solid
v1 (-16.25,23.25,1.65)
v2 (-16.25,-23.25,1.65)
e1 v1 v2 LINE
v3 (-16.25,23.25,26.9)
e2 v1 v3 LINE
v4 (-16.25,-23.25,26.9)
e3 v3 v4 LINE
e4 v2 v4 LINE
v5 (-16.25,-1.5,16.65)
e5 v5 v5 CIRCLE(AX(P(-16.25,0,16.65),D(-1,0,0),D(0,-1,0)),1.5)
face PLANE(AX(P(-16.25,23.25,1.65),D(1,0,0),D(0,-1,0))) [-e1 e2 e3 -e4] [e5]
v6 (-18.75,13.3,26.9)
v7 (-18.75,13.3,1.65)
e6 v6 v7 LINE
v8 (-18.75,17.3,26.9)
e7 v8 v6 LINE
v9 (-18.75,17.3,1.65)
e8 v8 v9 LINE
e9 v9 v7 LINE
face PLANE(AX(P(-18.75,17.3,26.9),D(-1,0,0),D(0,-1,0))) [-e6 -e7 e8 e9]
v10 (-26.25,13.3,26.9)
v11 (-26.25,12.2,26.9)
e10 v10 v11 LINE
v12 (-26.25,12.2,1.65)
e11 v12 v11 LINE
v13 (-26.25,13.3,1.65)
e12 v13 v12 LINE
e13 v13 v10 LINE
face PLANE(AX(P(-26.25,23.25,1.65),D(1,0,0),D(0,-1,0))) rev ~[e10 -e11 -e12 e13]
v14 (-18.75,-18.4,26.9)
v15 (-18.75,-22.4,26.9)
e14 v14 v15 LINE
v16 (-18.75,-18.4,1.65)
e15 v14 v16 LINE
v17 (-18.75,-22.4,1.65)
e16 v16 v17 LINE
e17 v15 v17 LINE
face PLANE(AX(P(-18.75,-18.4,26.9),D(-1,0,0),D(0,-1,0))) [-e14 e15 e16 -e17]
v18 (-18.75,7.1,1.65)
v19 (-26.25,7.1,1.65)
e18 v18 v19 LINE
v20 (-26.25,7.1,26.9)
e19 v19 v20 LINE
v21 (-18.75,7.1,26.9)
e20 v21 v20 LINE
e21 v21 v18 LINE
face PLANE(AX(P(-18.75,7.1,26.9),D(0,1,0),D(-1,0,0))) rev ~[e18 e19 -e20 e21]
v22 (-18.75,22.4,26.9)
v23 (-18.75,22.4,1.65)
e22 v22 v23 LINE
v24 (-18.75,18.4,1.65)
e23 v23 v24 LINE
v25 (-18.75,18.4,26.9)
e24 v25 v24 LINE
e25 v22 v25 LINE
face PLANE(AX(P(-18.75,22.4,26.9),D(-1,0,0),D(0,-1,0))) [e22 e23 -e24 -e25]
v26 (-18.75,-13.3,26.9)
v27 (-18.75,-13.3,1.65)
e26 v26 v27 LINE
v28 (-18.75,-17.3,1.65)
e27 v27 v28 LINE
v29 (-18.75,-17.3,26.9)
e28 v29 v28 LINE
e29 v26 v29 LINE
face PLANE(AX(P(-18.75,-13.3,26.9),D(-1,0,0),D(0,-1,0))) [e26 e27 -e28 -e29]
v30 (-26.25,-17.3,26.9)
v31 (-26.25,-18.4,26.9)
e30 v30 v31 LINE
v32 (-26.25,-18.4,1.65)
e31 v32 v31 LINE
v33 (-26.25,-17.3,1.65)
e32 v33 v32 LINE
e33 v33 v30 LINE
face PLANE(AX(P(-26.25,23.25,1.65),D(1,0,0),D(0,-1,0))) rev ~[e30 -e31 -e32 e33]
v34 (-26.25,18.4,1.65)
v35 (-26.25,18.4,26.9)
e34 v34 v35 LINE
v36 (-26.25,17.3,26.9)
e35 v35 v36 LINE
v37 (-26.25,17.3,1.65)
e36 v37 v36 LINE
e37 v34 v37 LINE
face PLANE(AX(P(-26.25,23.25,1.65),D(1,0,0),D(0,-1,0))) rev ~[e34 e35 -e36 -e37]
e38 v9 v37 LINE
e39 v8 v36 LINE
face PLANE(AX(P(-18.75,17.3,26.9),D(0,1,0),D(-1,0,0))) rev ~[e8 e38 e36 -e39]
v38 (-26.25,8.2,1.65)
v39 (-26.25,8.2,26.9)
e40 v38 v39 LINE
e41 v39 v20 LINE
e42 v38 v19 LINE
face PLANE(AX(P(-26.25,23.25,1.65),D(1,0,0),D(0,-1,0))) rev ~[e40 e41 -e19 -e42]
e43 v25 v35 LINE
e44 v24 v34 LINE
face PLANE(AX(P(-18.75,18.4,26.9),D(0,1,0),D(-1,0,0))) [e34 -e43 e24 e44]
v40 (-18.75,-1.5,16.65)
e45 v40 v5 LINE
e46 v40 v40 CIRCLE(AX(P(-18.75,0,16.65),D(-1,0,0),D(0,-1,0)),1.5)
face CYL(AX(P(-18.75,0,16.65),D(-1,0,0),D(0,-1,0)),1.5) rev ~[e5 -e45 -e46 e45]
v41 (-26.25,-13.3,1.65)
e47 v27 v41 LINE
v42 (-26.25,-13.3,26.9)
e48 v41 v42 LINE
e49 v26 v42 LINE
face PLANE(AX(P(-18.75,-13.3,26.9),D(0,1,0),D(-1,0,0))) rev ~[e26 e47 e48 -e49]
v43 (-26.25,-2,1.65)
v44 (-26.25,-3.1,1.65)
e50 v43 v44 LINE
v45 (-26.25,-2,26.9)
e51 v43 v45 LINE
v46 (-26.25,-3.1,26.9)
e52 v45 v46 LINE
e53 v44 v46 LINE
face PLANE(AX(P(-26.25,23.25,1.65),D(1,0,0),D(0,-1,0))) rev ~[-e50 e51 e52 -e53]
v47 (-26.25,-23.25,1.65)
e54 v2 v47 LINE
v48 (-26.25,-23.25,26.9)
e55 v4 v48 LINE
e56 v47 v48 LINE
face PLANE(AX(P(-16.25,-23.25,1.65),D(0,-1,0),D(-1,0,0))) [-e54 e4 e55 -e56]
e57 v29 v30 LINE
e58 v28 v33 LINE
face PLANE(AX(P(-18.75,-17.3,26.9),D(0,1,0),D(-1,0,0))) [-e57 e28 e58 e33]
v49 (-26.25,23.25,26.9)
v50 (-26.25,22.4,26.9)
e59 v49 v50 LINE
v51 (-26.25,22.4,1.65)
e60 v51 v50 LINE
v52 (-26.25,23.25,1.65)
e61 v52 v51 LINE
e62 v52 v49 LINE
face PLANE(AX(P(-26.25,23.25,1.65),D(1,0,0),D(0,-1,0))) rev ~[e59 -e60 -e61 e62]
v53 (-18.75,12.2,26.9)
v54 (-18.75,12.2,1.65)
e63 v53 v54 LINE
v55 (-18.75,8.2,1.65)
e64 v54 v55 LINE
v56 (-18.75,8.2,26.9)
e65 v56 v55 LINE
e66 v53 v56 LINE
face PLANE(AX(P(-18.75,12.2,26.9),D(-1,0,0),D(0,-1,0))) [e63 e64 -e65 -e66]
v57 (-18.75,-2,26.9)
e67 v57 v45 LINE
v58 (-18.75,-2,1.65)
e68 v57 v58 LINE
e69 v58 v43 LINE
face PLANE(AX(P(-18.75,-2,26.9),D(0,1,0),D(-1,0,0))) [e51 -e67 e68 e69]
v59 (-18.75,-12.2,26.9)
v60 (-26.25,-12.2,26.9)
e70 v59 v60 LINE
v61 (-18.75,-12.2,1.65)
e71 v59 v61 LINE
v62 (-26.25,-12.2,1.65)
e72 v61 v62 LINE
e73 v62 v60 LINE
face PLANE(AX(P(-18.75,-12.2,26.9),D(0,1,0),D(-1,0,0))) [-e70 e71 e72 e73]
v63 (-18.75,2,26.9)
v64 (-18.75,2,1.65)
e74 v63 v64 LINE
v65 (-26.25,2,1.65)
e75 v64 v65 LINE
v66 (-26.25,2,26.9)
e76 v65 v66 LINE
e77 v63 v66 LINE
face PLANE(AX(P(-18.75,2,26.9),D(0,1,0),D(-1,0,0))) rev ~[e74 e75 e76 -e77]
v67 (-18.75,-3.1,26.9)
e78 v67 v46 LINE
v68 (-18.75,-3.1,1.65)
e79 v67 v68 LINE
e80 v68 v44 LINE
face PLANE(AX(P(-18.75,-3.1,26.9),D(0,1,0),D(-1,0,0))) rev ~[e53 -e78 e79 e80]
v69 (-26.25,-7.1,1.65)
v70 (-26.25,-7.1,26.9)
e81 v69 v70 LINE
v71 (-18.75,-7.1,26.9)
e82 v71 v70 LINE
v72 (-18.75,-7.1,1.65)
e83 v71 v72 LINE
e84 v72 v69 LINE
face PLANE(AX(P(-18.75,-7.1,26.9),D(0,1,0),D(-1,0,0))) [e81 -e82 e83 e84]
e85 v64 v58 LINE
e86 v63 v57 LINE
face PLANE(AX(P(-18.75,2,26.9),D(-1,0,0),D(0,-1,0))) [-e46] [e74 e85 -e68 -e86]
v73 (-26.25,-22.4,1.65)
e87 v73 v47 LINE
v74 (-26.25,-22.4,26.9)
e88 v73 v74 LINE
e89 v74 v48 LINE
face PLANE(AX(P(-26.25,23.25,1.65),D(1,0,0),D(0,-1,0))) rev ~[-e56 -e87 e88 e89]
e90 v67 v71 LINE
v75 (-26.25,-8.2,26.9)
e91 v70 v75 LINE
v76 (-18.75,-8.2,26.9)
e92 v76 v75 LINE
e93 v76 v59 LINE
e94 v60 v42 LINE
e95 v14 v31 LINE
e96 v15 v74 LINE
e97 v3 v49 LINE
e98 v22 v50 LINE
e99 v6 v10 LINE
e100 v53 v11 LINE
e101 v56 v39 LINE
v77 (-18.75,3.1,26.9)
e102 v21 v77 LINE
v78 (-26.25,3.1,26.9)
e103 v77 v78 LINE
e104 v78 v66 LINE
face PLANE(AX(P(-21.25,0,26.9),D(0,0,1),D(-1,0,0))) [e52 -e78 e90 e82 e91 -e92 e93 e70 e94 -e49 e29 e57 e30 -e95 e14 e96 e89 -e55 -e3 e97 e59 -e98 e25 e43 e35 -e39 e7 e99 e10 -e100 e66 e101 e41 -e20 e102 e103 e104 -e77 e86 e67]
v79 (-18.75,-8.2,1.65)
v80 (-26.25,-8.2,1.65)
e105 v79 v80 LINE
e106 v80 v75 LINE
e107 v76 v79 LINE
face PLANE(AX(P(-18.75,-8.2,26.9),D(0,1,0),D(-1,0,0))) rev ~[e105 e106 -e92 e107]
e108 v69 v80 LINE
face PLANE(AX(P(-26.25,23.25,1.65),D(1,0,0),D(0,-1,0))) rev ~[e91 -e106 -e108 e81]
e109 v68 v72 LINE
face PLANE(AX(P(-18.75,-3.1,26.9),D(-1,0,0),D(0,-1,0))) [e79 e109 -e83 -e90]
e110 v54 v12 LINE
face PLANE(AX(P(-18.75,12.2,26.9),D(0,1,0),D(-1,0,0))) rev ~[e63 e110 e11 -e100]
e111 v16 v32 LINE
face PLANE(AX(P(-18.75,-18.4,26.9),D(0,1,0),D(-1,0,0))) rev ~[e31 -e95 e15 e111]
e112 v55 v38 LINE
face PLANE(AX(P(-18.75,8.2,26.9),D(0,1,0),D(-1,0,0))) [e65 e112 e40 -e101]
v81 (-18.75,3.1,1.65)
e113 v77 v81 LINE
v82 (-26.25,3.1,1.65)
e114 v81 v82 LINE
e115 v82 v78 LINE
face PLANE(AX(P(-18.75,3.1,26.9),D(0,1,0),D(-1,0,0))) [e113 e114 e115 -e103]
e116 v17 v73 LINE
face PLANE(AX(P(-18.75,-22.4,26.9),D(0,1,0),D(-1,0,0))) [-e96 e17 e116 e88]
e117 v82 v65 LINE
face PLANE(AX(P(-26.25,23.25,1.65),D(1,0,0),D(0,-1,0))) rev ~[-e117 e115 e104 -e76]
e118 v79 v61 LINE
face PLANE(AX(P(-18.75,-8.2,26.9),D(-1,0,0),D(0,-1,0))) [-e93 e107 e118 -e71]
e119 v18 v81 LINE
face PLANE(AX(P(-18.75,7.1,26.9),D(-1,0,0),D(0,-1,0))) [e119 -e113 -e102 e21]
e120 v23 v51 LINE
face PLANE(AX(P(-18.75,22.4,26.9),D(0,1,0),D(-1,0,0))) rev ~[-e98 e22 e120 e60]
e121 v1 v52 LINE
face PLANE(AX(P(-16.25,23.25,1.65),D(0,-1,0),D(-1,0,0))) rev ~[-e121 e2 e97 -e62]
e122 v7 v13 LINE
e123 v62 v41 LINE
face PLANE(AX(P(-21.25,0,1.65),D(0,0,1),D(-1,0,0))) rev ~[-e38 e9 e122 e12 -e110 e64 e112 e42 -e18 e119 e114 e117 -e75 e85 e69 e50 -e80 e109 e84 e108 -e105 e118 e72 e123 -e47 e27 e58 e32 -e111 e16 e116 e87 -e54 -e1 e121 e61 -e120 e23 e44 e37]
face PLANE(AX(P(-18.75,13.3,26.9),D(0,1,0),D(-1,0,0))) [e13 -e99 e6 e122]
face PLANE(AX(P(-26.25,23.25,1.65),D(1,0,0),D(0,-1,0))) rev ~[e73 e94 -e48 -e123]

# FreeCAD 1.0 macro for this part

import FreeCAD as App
import Part
import Sketcher

V = App.Vector

doc = App.newDocument("Part")
body = doc.addObject("PartDesign::Body", "Body")

sketch1 = doc.addObject("Sketcher::SketchObject", "Sketch")
body.addObject(sketch1)
sketch1.AttachmentSupport = (doc.XY_Plane, [""])
sketch1.MapMode = "FlatFace"
sketch1.addGeometry([
    Part.LineSegment(V(-5, 23, 0), V(-5, -23, 0)),
    Part.LineSegment(V(-5, -23, 0), V(5, -23, 0)),
    Part.LineSegment(V(5, -23, 0), V(5, 23, 0)),
    Part.LineSegment(V(5, 23, 0), V(-5, 23, 0)),
], False)
sketch1.addConstraint([
    Sketcher.Constraint("Coincident", 0, 2, 1, 1),
    Sketcher.Constraint("Coincident", 1, 2, 2, 1),
    Sketcher.Constraint("Coincident", 2, 2, 3, 1),
    Sketcher.Constraint("Coincident", 3, 2, 0, 1),
    Sketcher.Constraint("Vertical", 0),
    Sketcher.Constraint("Horizontal", 1),
    Sketcher.Constraint("Vertical", 2),
    Sketcher.Constraint("Horizontal", 3),
    Sketcher.Constraint("Symmetric", 0, 2, 2, 2, -1, 1),
    Sketcher.Constraint("DistanceX", 1, 1, 1, 2, 10.0),
    Sketcher.Constraint("DistanceY", 0, 2, 0, 1, 46.5),
])
pad1 = doc.addObject("PartDesign::Pad", "Pad")
body.addObject(pad1)
pad1.Profile = sketch1
pad1.Length = 25.25

sketch2 = doc.addObject("Sketcher::SketchObject", "Sketch001")
body.addObject(sketch2)
sketch2.AttachmentSupport = (doc.XY_Plane, [""])
sketch2.MapMode = "FlatFace"
sketch2.AttachmentOffset = App.Placement(V(0, 0, 25.25), App.Rotation())
sketch2.addGeometry([
    Part.LineSegment(V(-2.5, 22.4, 0), V(-2.5, 18.4, 0)),
    Part.LineSegment(V(-2.5, 18.4, 0), V(7.5, 18.4, 0)),
    Part.LineSegment(V(7.5, 18.4, 0), V(7.5, 22.4, 0)),
    Part.LineSegment(V(7.5, 22.4, 0), V(-2.5, 22.4, 0)),
    Part.LineSegment(V(-2.5, 12.2, 0), V(-2.5, 8.2, 0)),
    Part.LineSegment(V(-2.5, 8.2, 0), V(7.5, 8.2, 0)),
    Part.LineSegment(V(7.5, 8.2, 0), V(7.5, 12.2, 0)),
    Part.LineSegment(V(7.5, 12.2, 0), V(-2.5, 12.2, 0)),
    Part.LineSegment(V(-2.5, 17.3, 0), V(-2.5, 13.3, 0)),
    Part.LineSegment(V(-2.5, 13.3, 0), V(7.5, 13.3, 0)),
    Part.LineSegment(V(7.5, 13.3, 0), V(7.5, 17.3, 0)),
    Part.LineSegment(V(7.5, 17.3, 0), V(-2.5, 17.3, 0)),
    Part.LineSegment(V(-2.5, 7.1, 0), V(-2.5, 3.1, 0)),
    Part.LineSegment(V(-2.5, 3.1, 0), V(7.5, 3.1, 0)),
    Part.LineSegment(V(7.5, 3.1, 0), V(7.5, 7.1, 0)),
    Part.LineSegment(V(7.5, 7.1, 0), V(-2.5, 7.1, 0)),
    Part.LineSegment(V(-2.5, 2, 0), V(-2.5, -2, 0)),
    Part.LineSegment(V(-2.5, -2, 0), V(7.5, -2, 0)),
    Part.LineSegment(V(7.5, -2, 0), V(7.5, 2, 0)),
    Part.LineSegment(V(7.5, 2, 0), V(-2.5, 2, 0)),
    Part.LineSegment(V(-2.5, -18.4, 0), V(-2.5, -22.4, 0)),
    Part.LineSegment(V(-2.5, -22.4, 0), V(7.5, -22.4, 0)),
    Part.LineSegment(V(7.5, -22.4, 0), V(7.5, -18.4, 0)),
    Part.LineSegment(V(7.5, -18.4, 0), V(-2.5, -18.4, 0)),
    Part.LineSegment(V(-2.5, -13.3, 0), V(-2.5, -17.3, 0)),
    Part.LineSegment(V(-2.5, -17.3, 0), V(7.5, -17.3, 0)),
    Part.LineSegment(V(7.5, -17.3, 0), V(7.5, -13.3, 0)),
    Part.LineSegment(V(7.5, -13.3, 0), V(-2.5, -13.3, 0)),
    Part.LineSegment(V(-2.5, -8.2, 0), V(-2.5, -12.2, 0)),
    Part.LineSegment(V(-2.5, -12.2, 0), V(7.5, -12.2, 0)),
    Part.LineSegment(V(7.5, -12.2, 0), V(7.5, -8.2, 0)),
    Part.LineSegment(V(7.5, -8.2, 0), V(-2.5, -8.2, 0)),
    Part.LineSegment(V(-2.5, -3.1, 0), V(-2.5, -7.1, 0)),
    Part.LineSegment(V(-2.5, -7.1, 0), V(7.5, -7.1, 0)),
    Part.LineSegment(V(7.5, -7.1, 0), V(7.5, -3.1, 0)),
    Part.LineSegment(V(7.5, -3.1, 0), V(-2.5, -3.1, 0)),
], False)
sketch2.addConstraint([
    Sketcher.Constraint("Coincident", 0, 2, 1, 1),
    Sketcher.Constraint("Coincident", 1, 2, 2, 1),
    Sketcher.Constraint("Coincident", 2, 2, 3, 1),
    Sketcher.Constraint("Coincident", 3, 2, 0, 1),
    Sketcher.Constraint("Coincident", 4, 2, 5, 1),
    Sketcher.Constraint("Coincident", 5, 2, 6, 1),
    Sketcher.Constraint("Coincident", 6, 2, 7, 1),
    Sketcher.Constraint("Coincident", 7, 2, 4, 1),
    Sketcher.Constraint("Coincident", 8, 2, 9, 1),
    Sketcher.Constraint("Coincident", 9, 2, 10, 1),
    Sketcher.Constraint("Coincident", 10, 2, 11, 1),
    Sketcher.Constraint("Coincident", 11, 2, 8, 1),
    Sketcher.Constraint("Coincident", 12, 2, 13, 1),
    Sketcher.Constraint("Coincident", 13, 2, 14, 1),
    Sketcher.Constraint("Coincident", 14, 2, 15, 1),
    Sketcher.Constraint("Coincident", 15, 2, 12, 1),
    Sketcher.Constraint("Coincident", 16, 2, 17, 1),
    Sketcher.Constraint("Coincident", 17, 2, 18, 1),
    Sketcher.Constraint("Coincident", 18, 2, 19, 1),
    Sketcher.Constraint("Coincident", 19, 2, 16, 1),
    Sketcher.Constraint("Coincident", 20, 2, 21, 1),
    Sketcher.Constraint("Coincident", 21, 2, 22, 1),
    Sketcher.Constraint("Coincident", 22, 2, 23, 1),
    Sketcher.Constraint("Coincident", 23, 2, 20, 1),
    Sketcher.Constraint("Coincident", 24, 2, 25, 1),
    Sketcher.Constraint("Coincident", 25, 2, 26, 1),
    Sketcher.Constraint("Coincident", 26, 2, 27, 1),
    Sketcher.Constraint("Coincident", 27, 2, 24, 1),
    Sketcher.Constraint("Coincident", 28, 2, 29, 1),
    Sketcher.Constraint("Coincident", 29, 2, 30, 1),
    Sketcher.Constraint("Coincident", 30, 2, 31, 1),
    Sketcher.Constraint("Coincident", 31, 2, 28, 1),
    Sketcher.Constraint("Coincident", 32, 2, 33, 1),
    Sketcher.Constraint("Coincident", 33, 2, 34, 1),
    Sketcher.Constraint("Coincident", 34, 2, 35, 1),
    Sketcher.Constraint("Coincident", 35, 2, 32, 1),
    Sketcher.Constraint("Vertical", 0),
    Sketcher.Constraint("Horizontal", 1),
    Sketcher.Constraint("Vertical", 2),
    Sketcher.Constraint("Horizontal", 3),
    Sketcher.Constraint("Vertical", 4),
    Sketcher.Constraint("Horizontal", 5),
    Sketcher.Constraint("Vertical", 6),
    Sketcher.Constraint("Horizontal", 7),
    Sketcher.Constraint("Vertical", 8),
    Sketcher.Constraint("Horizontal", 9),
    Sketcher.Constraint("Vertical", 10),
    Sketcher.Constraint("Horizontal", 11),
    Sketcher.Constraint("Vertical", 12),
    Sketcher.Constraint("Horizontal", 13),
    Sketcher.Constraint("Vertical", 14),
    Sketcher.Constraint("Horizontal", 15),
    Sketcher.Constraint("Vertical", 16),
    Sketcher.Constraint("Horizontal", 17),
    Sketcher.Constraint("Vertical", 18),
    Sketcher.Constraint("Horizontal", 19),
    Sketcher.Constraint("Vertical", 20),
    Sketcher.Constraint("Horizontal", 21),
    Sketcher.Constraint("Vertical", 22),
    Sketcher.Constraint("Horizontal", 23),
    Sketcher.Constraint("Vertical", 24),
    Sketcher.Constraint("Horizontal", 25),
    Sketcher.Constraint("Vertical", 26),
    Sketcher.Constraint("Horizontal", 27),
    Sketcher.Constraint("Vertical", 28),
    Sketcher.Constraint("Horizontal", 29),
    Sketcher.Constraint("Vertical", 30),
    Sketcher.Constraint("Horizontal", 31),
    Sketcher.Constraint("Vertical", 32),
    Sketcher.Constraint("Horizontal", 33),
    Sketcher.Constraint("Vertical", 34),
    Sketcher.Constraint("Horizontal", 35),
    Sketcher.Constraint("Symmetric", 3, 2, 20, 2, -1),
    Sketcher.Constraint("Symmetric", 1, 2, 22, 2, -1),
    Sketcher.Constraint("Symmetric", 11, 2, 24, 2, -1),
    Sketcher.Constraint("Symmetric", 9, 2, 26, 2, -1),
    Sketcher.Constraint("Symmetric", 7, 2, 28, 2, -1),
    Sketcher.Constraint("Symmetric", 5, 2, 30, 2, -1),
    Sketcher.Constraint("Symmetric", 15, 2, 32, 2, -1),
    Sketcher.Constraint("Symmetric", 13, 2, 34, 2, -1),
    Sketcher.Constraint("Vertical", 3, 2, 4, 2),
    Sketcher.Constraint("Vertical", 2, 2, 5, 2),
    Sketcher.Constraint("Vertical", 7, 2, 8, 2),
    Sketcher.Constraint("Vertical", 6, 2, 9, 2),
    Sketcher.Constraint("Vertical", 11, 2, 12, 2),
    Sketcher.Constraint("Vertical", 10, 2, 13, 2),
    Sketcher.Constraint("Vertical", 15, 2, 16, 2),
    Sketcher.Constraint("Vertical", 14, 2, 17, 2),
    Sketcher.Constraint("Equal", 2, 4),
    Sketcher.Constraint("Equal", 6, 8),
    Sketcher.Constraint("Equal", 10, 12),
    Sketcher.Constraint("Equal", 14, 16),
    Sketcher.Constraint("DistanceX", 1, 1, 1, 2, 10.0),
    Sketcher.Constraint("DistanceY", 0, 2, 0, 1, 4.0),
    Sketcher.Constraint("DistanceY", 16, 2, -1, 1, 2.0),
    Sketcher.Constraint("DistanceX", 0, 2, -1, 1, 2.5),
    Sketcher.Constraint("DistanceY", -1, 1, 0, 2, 18.4),
    Sketcher.Constraint("DistanceY", -1, 1, 4, 2, 8.2),
    Sketcher.Constraint("DistanceY", -1, 1, 8, 2, 13.3),
    Sketcher.Constraint("DistanceY", -1, 1, 12, 2, 3.1),
])
pocket1 = doc.addObject("PartDesign::Pocket", "Pocket")
body.addObject(pocket1)
pocket1.Profile = sketch2
pocket1.Length = 25.25

sketch3 = doc.addObject("Sketcher::SketchObject", "Sketch002")
body.addObject(sketch3)
sketch3.AttachmentSupport = (doc.YZ_Plane, [""])
sketch3.MapMode = "FlatFace"
sketch3.AttachmentOffset = App.Placement(V(0, 0, -2.5), App.Rotation())
sketch3.addGeometry(Part.Circle(V(0, 15, 0), V(0, 0, 1), 1.5), False)
sketch3.addConstraint([
    Sketcher.Constraint("PointOnObject", 0, 3, -2),
    Sketcher.Constraint("Diameter", 0, 3.0),
    Sketcher.Constraint("DistanceY", -1, 1, 0, 3, 15.0),
])
pocket2 = doc.addObject("PartDesign::Pocket", "Pocket001")
body.addObject(pocket2)
pocket2.Profile = sketch3
pocket2.Length = 5
body2 = doc.addObject("PartDesign::Body", "Body001")
doc.recompute()

body.Placement = App.Placement(V(-21.25, 0, 1.65), App.Rotation(V(0, 0, 1), 180))
boolean = doc.addObject("PartDesign::Boolean", "Boolean")
body2.addObject(boolean)
boolean.Type = "Fuse"
boolean.addObjects([body])

doc.recompute()
